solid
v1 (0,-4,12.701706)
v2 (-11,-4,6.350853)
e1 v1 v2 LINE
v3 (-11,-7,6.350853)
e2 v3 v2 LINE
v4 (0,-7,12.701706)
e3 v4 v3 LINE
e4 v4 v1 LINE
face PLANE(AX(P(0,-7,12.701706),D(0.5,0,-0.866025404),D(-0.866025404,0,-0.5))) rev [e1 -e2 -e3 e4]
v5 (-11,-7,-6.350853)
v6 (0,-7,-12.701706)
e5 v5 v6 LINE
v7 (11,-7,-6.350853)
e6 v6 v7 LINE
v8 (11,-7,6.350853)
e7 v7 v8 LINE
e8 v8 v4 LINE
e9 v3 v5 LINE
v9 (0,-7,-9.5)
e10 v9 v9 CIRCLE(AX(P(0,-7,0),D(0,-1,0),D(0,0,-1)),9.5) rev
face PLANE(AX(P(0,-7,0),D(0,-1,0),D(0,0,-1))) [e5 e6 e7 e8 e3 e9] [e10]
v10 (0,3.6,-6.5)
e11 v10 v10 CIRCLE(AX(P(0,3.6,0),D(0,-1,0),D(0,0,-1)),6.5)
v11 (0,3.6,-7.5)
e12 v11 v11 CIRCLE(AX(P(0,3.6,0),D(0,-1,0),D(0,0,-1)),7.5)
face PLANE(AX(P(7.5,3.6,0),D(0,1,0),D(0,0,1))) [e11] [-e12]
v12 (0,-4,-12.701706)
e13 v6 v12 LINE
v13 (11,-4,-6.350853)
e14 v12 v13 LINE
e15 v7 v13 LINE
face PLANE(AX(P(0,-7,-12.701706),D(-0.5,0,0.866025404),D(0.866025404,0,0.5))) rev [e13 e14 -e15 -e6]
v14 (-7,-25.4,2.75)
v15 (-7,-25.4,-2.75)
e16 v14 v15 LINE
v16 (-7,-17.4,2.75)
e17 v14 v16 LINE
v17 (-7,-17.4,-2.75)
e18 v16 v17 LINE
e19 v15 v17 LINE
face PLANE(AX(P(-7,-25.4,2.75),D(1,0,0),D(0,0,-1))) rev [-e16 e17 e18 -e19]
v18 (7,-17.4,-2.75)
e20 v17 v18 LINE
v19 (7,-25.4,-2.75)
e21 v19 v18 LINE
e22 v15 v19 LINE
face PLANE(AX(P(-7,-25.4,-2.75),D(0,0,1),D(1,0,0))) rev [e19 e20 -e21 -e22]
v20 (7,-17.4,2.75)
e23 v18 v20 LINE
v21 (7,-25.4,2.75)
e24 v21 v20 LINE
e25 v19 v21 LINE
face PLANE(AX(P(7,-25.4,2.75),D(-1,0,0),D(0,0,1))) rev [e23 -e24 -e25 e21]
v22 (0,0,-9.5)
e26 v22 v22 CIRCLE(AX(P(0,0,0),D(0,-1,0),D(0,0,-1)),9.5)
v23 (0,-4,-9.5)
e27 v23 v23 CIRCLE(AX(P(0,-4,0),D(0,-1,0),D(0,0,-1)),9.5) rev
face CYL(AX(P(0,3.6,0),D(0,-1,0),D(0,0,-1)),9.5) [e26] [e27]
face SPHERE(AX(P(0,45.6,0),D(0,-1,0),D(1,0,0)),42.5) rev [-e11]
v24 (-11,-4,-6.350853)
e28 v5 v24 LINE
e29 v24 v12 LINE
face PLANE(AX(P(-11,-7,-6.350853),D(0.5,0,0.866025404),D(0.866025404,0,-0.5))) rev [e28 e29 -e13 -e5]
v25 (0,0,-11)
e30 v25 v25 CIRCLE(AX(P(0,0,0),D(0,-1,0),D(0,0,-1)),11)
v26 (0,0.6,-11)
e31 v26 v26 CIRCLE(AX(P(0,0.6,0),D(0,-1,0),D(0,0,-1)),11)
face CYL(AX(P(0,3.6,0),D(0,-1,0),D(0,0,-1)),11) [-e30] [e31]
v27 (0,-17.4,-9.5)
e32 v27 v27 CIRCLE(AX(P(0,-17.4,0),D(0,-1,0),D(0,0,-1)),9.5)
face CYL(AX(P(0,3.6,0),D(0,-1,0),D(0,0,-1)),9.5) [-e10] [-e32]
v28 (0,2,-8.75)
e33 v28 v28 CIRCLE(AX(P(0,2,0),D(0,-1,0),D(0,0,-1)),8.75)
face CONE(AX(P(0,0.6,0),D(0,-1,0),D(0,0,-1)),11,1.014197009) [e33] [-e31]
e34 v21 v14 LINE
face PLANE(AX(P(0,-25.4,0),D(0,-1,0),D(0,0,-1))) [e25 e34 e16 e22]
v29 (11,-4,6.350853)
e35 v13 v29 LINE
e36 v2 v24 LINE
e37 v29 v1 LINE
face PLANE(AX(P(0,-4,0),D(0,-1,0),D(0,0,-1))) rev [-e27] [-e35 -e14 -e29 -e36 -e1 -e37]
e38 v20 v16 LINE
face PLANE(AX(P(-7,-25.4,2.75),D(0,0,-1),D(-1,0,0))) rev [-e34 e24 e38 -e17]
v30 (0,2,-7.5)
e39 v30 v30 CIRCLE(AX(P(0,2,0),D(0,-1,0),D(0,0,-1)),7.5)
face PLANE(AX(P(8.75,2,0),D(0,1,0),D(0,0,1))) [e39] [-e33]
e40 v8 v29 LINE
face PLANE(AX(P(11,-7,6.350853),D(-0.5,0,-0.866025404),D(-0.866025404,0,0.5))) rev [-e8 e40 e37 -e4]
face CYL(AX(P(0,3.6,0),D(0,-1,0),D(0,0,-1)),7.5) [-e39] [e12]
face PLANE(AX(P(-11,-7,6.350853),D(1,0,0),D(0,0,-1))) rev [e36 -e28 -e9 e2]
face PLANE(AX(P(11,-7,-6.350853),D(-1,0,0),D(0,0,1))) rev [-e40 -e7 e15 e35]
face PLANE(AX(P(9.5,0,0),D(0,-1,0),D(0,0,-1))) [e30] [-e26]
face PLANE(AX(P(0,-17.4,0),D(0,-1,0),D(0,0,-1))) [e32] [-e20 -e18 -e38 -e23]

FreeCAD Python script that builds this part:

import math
import FreeCAD as App
import Part
import Sketcher

V = App.Vector
Q = App.Units.Quantity

doc = App.newDocument("Part")
body = doc.addObject("PartDesign::Body", "Body")

# Sketch on XY plane
sketch1 = body.newObject("Sketcher::SketchObject", "Sketch")
sketch1.AttachmentSupport = (doc.getObject("XY_Plane"), [""])
sketch1.MapMode = "FlatFace"
sketch1.addGeometry([
    Part.LineSegment(V(9.5, 0, 0), V(11, 0, 0)),  # 0
    Part.LineSegment(V(11, 0, 0), V(11, 0.6, 0)),  # 1
    Part.LineSegment(V(11, 0.6, 0), V(8.8, 2, 0)),  # 2
    Part.LineSegment(V(8.8, 2, 0), V(7.5, 2, 0)),  # 3
    Part.LineSegment(V(7.5, 2, 0), V(7.5, 3.6, 0)),  # 4
    Part.LineSegment(V(7.5, 3.6, 0), V(6.5, 3.6, 0)),  # 5
    Part.ArcOfCircle(Part.Circle(V(0, 45.6, 0), V(0, 0, 1), 42.5), math.radians(-90), math.radians(-81.2)),  # 6
    Part.LineSegment(V(0, 3.1, 0), V(0, -17.4, 0)),  # 7
    Part.LineSegment(V(0, -17.4, 0), V(9.5, -17.4, 0)),  # 8
    Part.LineSegment(V(9.5, -17.4, 0), V(9.5, 0, 0)),  # 9
], False)
sketch1.addConstraint([
    Sketcher.Constraint("Coincident", 0, 2, 1, 1),
    Sketcher.Constraint("Coincident", 1, 2, 2, 1),
    Sketcher.Constraint("Coincident", 2, 2, 3, 1),
    Sketcher.Constraint("Coincident", 3, 2, 4, 1),
    Sketcher.Constraint("Coincident", 4, 2, 5, 1),
    Sketcher.Constraint("Coincident", 5, 2, 6, 2),
    Sketcher.Constraint("Coincident", 6, 1, 7, 1),
    Sketcher.Constraint("Coincident", 7, 2, 8, 1),
    Sketcher.Constraint("Coincident", 8, 2, 9, 1),
    Sketcher.Constraint("Coincident", 9, 2, 0, 1),
    Sketcher.Constraint("Horizontal", 0),
    Sketcher.Constraint("Vertical", 1),
    Sketcher.Constraint("Horizontal", 3),
    Sketcher.Constraint("Vertical", 4),
    Sketcher.Constraint("Horizontal", 5),
    Sketcher.Constraint("Vertical", 7),
    Sketcher.Constraint("Horizontal", 8),
    Sketcher.Constraint("Vertical", 9),
    Sketcher.Constraint("PointOnObject", 6, 3, -2),
    Sketcher.Constraint("PointOnObject", 0, 2, -1),
    Sketcher.Constraint("PointOnObject", 6, 1, -2),
    Sketcher.Constraint("Radius", 6, Q("42.5 mm")),
    Sketcher.Constraint("DistanceX", 5, 2, 5, 1, Q("1 mm")),
    Sketcher.Constraint("DistanceX", 0, 1, 0, 2, Q("1.5 mm")),
    Sketcher.Constraint("DistanceX", 8, 1, 8, 2, Q("9.5 mm")),
    Sketcher.Constraint("DistanceY", 1, 1, 1, 2, Q("0.6 mm")),
    Sketcher.Constraint("DistanceY", 4, 1, 4, 2, Q("1.6 mm")),
    Sketcher.Constraint("DistanceY", 7, 2, 7, 1, Q("20.5 mm")),
    Sketcher.Constraint("DistanceY", 9, 1, 9, 2, Q("17.4 mm")),
    Sketcher.Constraint("DistanceY", -1, 1, 2, 2, Q("2 mm")),
    Sketcher.Constraint("DistanceX", 3, 2, 3, 1, Q("1.25 mm")),
])
revolution = body.newObject("PartDesign::Revolution", "Revolution")
revolution.Profile = sketch1
revolution.ReferenceAxis = (sketch1, ["V_Axis"])
revolution.Angle = 360

# Sketch on XZ plane
sketch2 = body.newObject("Sketcher::SketchObject", "Sketch001")
sketch2.AttachmentSupport = (doc.getObject("XZ_Plane"), [""])
sketch2.MapMode = "FlatFace"
sketch2.AttachmentOffset = App.Placement(V(0, 0, 17.4), App.Rotation())
sketch2.addGeometry([
    Part.LineSegment(V(-7, 3, 0), V(-7, -3, 0)),
    Part.LineSegment(V(-7, -3, 0), V(7, -3, 0)),
    Part.LineSegment(V(7, -3, 0), V(7, 3, 0)),
    Part.LineSegment(V(7, 3, 0), V(-7, 3, 0)),
], False)
sketch2.addConstraint([
    Sketcher.Constraint("Coincident", 0, 2, 1, 1),
    Sketcher.Constraint("Coincident", 1, 2, 2, 1),
    Sketcher.Constraint("Coincident", 2, 2, 3, 1),
    Sketcher.Constraint("Coincident", 3, 2, 0, 1),
    Sketcher.Constraint("Vertical", 0),
    Sketcher.Constraint("Horizontal", 1),
    Sketcher.Constraint("Vertical", 2),
    Sketcher.Constraint("Horizontal", 3),
    Sketcher.Constraint("Symmetric", 0, 2, 2, 2, -1, 1),
    Sketcher.Constraint("DistanceX", 1, 1, 1, 2, Q("14 mm")),
    Sketcher.Constraint("DistanceY", 0, 2, 0, 1, Q("5.5 mm")),
])
pad1 = body.newObject("PartDesign::Pad", "Pad")
pad1.Profile = sketch2
pad1.Length = 8

# Sketch on XZ plane
sketch3 = body.newObject("Sketcher::SketchObject", "Sketch002")
sketch3.AttachmentSupport = (doc.getObject("XZ_Plane"), [""])
sketch3.MapMode = "FlatFace"
sketch3.AttachmentOffset = App.Placement(V(0, 0, 4), App.Rotation())
sketch3.addGeometry([
    Part.LineSegment(V(0, 13, 0), V(-11, 6, 0)),  # 0
    Part.LineSegment(V(-11, 6, 0), V(-11, -6, 0)),  # 1
    Part.LineSegment(V(-11, -6, 0), V(0, -13, 0)),  # 2
    Part.LineSegment(V(0, -13, 0), V(11, -6, 0)),  # 3
    Part.LineSegment(V(11, -6, 0), V(11, 6, 0)),  # 4
    Part.LineSegment(V(11, 6, 0), V(0, 13, 0)),  # 5
], False)
sketch3.addConstraint([
    Sketcher.Constraint("Coincident", 0, 2, 1, 1),
    Sketcher.Constraint("Coincident", 1, 2, 2, 1),
    Sketcher.Constraint("Coincident", 2, 2, 3, 1),
    Sketcher.Constraint("Coincident", 3, 2, 4, 1),
    Sketcher.Constraint("Coincident", 4, 2, 5, 1),
    Sketcher.Constraint("Coincident", 5, 2, 0, 1),
    Sketcher.Constraint("Vertical", 1),
    Sketcher.Constraint("Vertical", 4),
    Sketcher.Constraint("Symmetric", 0, 2, 3, 2, -1, 1),
    Sketcher.Constraint("Symmetric", 2, 2, 5, 2, -1, 1),
    Sketcher.Constraint("PointOnObject", 2, 2, -2),
    Sketcher.Constraint("Parallel", 2, 5),
    Sketcher.Constraint("Horizontal", 1, 2, 3, 2),
    Sketcher.Constraint("Angle", 0, Q("-150 deg")),
    Sketcher.Constraint("DistanceX", 0, 2, -1, 1, Q("11 mm")),
    Sketcher.Constraint("DistanceY", 1, 2, 1, 1, Q("12.701706 mm")),
])
pad2 = body.newObject("PartDesign::Pad", "Pad001")
pad2.Profile = sketch3
pad2.Length = 3

doc.recompute()
